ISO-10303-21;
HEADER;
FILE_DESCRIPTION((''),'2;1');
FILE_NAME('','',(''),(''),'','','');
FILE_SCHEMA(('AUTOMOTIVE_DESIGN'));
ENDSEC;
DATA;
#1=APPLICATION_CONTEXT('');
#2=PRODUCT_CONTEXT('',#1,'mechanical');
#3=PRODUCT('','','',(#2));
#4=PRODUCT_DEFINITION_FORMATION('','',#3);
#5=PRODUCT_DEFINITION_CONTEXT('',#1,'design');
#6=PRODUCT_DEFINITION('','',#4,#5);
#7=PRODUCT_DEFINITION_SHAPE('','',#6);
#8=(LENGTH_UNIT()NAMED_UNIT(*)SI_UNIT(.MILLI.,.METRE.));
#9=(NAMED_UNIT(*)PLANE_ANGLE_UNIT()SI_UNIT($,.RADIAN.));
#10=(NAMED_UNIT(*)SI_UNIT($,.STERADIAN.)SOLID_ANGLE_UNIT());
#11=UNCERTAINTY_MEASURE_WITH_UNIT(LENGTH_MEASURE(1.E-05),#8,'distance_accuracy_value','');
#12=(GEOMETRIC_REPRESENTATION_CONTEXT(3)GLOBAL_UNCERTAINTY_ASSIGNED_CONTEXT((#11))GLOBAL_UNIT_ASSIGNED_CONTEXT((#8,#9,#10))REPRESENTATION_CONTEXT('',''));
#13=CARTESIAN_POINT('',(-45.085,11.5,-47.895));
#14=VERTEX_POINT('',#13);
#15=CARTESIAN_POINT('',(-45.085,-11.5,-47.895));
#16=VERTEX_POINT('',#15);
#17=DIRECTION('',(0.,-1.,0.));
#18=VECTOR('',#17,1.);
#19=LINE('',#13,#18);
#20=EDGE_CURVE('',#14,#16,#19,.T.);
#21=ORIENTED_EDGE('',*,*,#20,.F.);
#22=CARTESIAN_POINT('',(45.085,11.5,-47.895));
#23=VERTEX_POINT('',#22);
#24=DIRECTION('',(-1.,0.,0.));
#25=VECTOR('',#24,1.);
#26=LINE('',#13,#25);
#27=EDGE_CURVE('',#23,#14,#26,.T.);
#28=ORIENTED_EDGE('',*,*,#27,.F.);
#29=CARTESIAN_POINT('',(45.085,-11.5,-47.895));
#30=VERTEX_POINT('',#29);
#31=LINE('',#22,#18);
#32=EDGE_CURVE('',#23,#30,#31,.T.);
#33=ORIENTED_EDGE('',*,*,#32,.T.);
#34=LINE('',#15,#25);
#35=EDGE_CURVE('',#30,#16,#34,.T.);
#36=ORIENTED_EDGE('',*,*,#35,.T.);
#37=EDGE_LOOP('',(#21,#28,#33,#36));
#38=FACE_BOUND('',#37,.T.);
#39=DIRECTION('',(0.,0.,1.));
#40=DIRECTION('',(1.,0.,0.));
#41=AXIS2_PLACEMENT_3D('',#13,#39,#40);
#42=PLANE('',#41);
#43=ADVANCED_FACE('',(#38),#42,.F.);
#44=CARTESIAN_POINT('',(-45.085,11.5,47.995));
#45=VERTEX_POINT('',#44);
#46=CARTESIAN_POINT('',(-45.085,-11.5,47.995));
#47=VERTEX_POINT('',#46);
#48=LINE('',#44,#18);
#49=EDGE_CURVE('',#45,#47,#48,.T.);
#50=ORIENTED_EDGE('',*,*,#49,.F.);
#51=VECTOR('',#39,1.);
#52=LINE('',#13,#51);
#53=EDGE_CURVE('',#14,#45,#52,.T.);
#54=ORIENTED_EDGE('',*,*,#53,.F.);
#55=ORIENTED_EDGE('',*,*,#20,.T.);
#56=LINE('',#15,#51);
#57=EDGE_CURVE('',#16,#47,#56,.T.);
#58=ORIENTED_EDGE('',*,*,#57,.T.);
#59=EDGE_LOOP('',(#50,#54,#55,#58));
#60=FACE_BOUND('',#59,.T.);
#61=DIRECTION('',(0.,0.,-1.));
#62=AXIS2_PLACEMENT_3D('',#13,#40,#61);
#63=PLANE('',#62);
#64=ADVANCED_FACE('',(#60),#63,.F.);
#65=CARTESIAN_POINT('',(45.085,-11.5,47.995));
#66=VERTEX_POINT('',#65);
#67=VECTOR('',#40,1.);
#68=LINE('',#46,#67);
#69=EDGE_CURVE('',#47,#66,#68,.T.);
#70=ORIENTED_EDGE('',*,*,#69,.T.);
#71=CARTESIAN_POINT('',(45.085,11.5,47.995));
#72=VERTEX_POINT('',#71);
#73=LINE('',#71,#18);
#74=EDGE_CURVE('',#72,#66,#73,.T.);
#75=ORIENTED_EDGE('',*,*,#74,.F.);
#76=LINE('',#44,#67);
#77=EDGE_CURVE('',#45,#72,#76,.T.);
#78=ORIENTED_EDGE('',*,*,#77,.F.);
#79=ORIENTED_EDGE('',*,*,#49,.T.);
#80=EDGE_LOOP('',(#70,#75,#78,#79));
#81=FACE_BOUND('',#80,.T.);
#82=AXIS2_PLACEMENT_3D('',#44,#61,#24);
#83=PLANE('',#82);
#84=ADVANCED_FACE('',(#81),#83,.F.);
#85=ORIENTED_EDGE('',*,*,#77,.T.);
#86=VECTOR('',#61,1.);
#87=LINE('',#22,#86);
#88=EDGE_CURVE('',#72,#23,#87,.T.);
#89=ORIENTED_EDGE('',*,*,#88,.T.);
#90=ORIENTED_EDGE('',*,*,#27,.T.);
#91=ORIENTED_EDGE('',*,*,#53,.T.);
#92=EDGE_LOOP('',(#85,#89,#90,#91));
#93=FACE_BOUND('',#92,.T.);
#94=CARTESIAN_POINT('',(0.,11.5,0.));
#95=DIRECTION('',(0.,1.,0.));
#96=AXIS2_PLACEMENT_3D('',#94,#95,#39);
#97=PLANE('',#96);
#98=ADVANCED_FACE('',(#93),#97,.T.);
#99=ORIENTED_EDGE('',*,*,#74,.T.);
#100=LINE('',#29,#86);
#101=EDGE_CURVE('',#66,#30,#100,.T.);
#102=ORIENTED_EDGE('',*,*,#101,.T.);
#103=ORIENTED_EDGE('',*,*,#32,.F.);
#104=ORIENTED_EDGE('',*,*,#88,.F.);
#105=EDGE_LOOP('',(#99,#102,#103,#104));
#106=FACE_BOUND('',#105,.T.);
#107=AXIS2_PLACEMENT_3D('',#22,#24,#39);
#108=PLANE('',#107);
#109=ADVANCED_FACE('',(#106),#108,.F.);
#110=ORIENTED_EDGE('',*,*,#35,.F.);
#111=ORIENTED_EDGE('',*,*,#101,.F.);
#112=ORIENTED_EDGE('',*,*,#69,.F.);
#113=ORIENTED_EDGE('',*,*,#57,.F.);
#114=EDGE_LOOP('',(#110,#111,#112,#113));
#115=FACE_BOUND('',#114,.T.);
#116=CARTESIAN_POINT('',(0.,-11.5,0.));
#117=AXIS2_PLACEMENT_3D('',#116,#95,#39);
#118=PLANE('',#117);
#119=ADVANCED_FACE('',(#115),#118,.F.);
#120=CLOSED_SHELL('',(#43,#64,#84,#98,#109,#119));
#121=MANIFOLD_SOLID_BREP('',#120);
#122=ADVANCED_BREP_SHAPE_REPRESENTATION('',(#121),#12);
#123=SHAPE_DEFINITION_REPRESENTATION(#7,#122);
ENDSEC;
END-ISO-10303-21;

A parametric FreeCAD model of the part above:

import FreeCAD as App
import Part
import Sketcher

doc = App.newDocument("Part")
body = doc.addObject("PartDesign::Body", "Body")

# Sketch on XZ plane
sketch1 = doc.addObject("Sketcher::SketchObject", "Sketch")
body.addObject(sketch1)
sketch1.AttachmentSupport = (doc.XZ_Plane, [""])
sketch1.MapMode = "FlatFace"
sketch1.addGeometry(Part.LineSegment(App.Vector(-45, -48, 0), App.Vector(-45, 48, 0)), False)
sketch1.addGeometry(Part.LineSegment(App.Vector(-45, 48, 0), App.Vector(45, 48, 0)), False)
sketch1.addGeometry(Part.LineSegment(App.Vector(45, 48, 0), App.Vector(45, -48, 0)), False)
sketch1.addGeometry(Part.LineSegment(App.Vector(45, -48, 0), App.Vector(-45, -48, 0)), False)
sketch1.addConstraint(Sketcher.Constraint("Coincident", 0, 2, 1, 1))
sketch1.addConstraint(Sketcher.Constraint("Coincident", 1, 2, 2, 1))
sketch1.addConstraint(Sketcher.Constraint("Coincident", 2, 2, 3, 1))
sketch1.addConstraint(Sketcher.Constraint("Coincident", 3, 2, 0, 1))
sketch1.addConstraint(Sketcher.Constraint("Vertical", 0))
sketch1.addConstraint(Sketcher.Constraint("Horizontal", 1))
sketch1.addConstraint(Sketcher.Constraint("Vertical", 2))
sketch1.addConstraint(Sketcher.Constraint("Horizontal", 3))
sketch1.addConstraint(Sketcher.Constraint("DistanceX", 1, 1, 1, 2, 90.17))
sketch1.addConstraint(Sketcher.Constraint("DistanceY", 0, 1, 0, 2, 95.89))
sketch1.addConstraint(Sketcher.Constraint("DistanceX", 0, 2, -1, 1, 45.085))
sketch1.addConstraint(Sketcher.Constraint("DistanceY", -1, 1, 0, 2, 47.995))
pad1 = doc.addObject("PartDesign::Pad", "Pad")
body.addObject(pad1)
pad1.Profile = sketch1
pad1.Length = 23
pad1.Midplane = True

doc.recompute()
